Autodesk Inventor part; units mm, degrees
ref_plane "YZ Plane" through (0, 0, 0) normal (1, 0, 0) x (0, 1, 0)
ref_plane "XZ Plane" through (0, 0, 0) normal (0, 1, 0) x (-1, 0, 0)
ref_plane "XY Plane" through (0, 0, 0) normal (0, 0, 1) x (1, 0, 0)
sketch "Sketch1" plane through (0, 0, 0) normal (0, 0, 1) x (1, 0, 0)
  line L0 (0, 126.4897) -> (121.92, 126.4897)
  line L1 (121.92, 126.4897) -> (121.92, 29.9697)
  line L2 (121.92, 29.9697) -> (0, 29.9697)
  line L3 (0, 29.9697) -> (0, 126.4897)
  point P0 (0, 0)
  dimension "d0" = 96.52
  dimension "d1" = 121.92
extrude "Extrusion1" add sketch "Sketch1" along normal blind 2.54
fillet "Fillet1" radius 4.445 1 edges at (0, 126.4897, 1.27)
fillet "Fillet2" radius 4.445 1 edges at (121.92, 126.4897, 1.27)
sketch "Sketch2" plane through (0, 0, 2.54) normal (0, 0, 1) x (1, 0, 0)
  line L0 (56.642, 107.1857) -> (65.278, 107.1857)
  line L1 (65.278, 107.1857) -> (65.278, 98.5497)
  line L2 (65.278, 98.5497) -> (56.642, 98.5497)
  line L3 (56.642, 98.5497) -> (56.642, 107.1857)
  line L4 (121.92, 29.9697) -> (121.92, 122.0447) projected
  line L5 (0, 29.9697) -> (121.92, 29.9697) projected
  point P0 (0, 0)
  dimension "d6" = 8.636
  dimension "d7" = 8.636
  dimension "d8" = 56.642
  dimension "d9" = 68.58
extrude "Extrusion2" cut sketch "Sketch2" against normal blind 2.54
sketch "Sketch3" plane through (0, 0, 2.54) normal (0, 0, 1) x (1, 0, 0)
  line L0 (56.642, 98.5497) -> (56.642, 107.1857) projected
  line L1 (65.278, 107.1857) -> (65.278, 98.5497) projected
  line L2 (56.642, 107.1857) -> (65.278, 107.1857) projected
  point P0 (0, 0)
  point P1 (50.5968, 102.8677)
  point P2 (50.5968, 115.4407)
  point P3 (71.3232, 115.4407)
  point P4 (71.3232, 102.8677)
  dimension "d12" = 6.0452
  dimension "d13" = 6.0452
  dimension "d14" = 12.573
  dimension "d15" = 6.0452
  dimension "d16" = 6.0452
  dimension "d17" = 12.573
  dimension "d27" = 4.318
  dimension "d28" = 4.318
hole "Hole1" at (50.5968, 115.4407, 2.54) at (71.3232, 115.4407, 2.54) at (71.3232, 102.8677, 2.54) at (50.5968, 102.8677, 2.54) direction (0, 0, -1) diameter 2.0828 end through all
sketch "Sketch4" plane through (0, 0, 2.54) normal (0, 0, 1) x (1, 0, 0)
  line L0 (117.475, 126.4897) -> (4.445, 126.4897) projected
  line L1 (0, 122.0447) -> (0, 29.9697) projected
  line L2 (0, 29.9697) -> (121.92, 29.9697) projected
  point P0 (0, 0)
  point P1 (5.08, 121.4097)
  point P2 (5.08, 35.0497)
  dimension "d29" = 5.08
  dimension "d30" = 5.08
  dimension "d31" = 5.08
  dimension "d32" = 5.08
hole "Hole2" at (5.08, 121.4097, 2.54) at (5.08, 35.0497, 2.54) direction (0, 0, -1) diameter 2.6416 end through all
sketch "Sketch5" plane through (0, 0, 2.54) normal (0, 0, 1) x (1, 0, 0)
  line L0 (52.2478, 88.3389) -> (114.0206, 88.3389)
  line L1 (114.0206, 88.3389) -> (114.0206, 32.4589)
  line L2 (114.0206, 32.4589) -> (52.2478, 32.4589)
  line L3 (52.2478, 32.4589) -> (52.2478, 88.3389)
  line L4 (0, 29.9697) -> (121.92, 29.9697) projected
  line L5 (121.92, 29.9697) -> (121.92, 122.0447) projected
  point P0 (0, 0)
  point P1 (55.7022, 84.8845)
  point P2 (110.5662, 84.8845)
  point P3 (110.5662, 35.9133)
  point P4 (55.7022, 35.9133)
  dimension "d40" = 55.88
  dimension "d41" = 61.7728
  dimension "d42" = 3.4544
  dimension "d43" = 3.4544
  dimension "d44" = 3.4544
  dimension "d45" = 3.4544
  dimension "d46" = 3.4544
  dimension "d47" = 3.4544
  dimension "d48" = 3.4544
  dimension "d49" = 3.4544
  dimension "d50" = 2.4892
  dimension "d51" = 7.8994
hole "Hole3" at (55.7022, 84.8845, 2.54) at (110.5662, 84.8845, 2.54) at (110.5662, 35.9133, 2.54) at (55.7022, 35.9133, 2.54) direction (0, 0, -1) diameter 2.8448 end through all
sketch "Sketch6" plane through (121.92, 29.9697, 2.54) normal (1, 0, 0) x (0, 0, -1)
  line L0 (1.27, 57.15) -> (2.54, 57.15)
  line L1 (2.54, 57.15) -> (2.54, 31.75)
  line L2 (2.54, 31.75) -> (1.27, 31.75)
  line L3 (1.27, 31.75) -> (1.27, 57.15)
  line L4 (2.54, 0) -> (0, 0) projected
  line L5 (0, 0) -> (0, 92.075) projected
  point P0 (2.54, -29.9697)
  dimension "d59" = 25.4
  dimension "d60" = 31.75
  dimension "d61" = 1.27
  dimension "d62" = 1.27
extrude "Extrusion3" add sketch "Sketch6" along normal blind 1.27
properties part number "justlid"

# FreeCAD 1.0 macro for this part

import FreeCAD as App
import Part
import Sketcher
Q = App.Units.Quantity


def edges_at(feature, points):
    """Names of the edges that pass closest to the given points."""
    edges = feature.Shape.Edges
    near = lambda p: min(range(len(edges)), key=lambda i: edges[i].distToShape(Part.Vertex(*p))[0])
    return sorted({f"Edge{near(p) + 1}" for p in points})


def add_polygon(sketch, points):
    """Adds a closed chain of lines whose ends are joined by coincident constraints."""
    first, n = sketch.GeometryCount, len(points)
    for a, b in zip(points, points[1:] + points[:1]):
        sketch.addGeometry(Part.LineSegment(App.Vector(*a, 0), App.Vector(*b, 0)), False)
    for i in range(n):
        sketch.addConstraint(Sketcher.Constraint("Coincident", first + i, 2, first + (i + 1) % n, 1))

doc = App.newDocument("Part")
params = doc.addObject("Spreadsheet::Sheet", "Params")
for row, (alias, value) in enumerate([
    ("sketch1_width", "4.8 in"),
    ("sketch1_height", "3.8 in"),
    ("pad1_length", "0.1 in"),
    ("fillet_radius", "0.175 in"),
    ("fillet2_radius", "0.175 in"),
    ("sketch2_width", "0.34 in"),
    ("pocket1_length", "0.1 in"),
    ("sketch3_diameter", "0.082 in"),
    ("hole_diameter", "0.082 in"),
    ("sketch4_diameter", "0.104 in"),
    ("hole2_diameter", "0.104 in"),
    ("sketch5_diameter", "0.112 in"),
    ("hole3_diameter", "0.112 in"),
    ("sketch6_width", "1 in"),
    ("sketch6_height", "0.05 in"),
    ("pad2_length", "0.05 in"),
], start=1):
    params.set(f"A{row}", alias)
    params.set(f"B{row}", "=" + value)
    params.setAlias(f"B{row}", alias)

body = doc.addObject("PartDesign::Body", "Body")

sketch1 = body.newObject("Sketcher::SketchObject", "Sketch")
sketch1.AttachmentSupport = (doc.getObject("XY_Plane"), [""])
sketch1.MapMode = "FlatFace"
add_polygon(sketch1, [(122, 126), (0, 126), (0, 30), (122, 30)])
sketch1.addConstraint([
    Sketcher.Constraint("Horizontal", 0),
    Sketcher.Constraint("Vertical", 1),
    Sketcher.Constraint("Horizontal", 2),
    Sketcher.Constraint("Vertical", 3),
    Sketcher.Constraint("PointOnObject", 0, 2, -2),
    Sketcher.Constraint("DistanceX", 0, 2, 0, 1, Q("4.8 in")),
    Sketcher.Constraint("DistanceY", 1, 2, 1, 1, Q("3.8 in")),
    Sketcher.Constraint("DistanceY", -1, 1, 0, 2, Q("4.9799 in")),
])
sketch1.setExpression("Constraints[9]", "Params.sketch1_width")
sketch1.setExpression("Constraints[10]", "Params.sketch1_height")
pad1 = body.newObject("PartDesign::Pad", "Pad")
pad1.Profile = sketch1
pad1.setExpression("Length", "Params.pad1_length")
doc.recompute()

fillet = body.newObject("PartDesign::Fillet", "Fillet")
fillet.Base = (pad1, edges_at(pad1, [(0, 126.49, 1.27)]))
fillet.setExpression("Radius", "Params.fillet_radius")
doc.recompute()

fillet2 = body.newObject("PartDesign::Fillet", "Fillet001")
fillet2.Base = (fillet, edges_at(fillet, [(121.92, 126.49, 1.27)]))
fillet2.setExpression("Radius", "Params.fillet2_radius")

sketch2 = body.newObject("Sketcher::SketchObject", "Sketch001")
sketch2.AttachmentSupport = (doc.getObject("XY_Plane"), [""])
sketch2.MapMode = "FlatFace"
sketch2.AttachmentOffset = App.Placement(App.Vector(0, 0, 0.1 * 25.4), App.Rotation())
add_polygon(sketch2, [(65, 107), (57, 107), (57, 99), (65, 99)])
sketch2.addConstraint([
    Sketcher.Constraint("Horizontal", 0),
    Sketcher.Constraint("Vertical", 1),
    Sketcher.Constraint("Horizontal", 2),
    Sketcher.Constraint("Vertical", 3),
    Sketcher.Constraint("Equal", 2, 1),
    Sketcher.Constraint("DistanceX", 0, 2, 0, 1, Q("0.34 in")),
    Sketcher.Constraint("DistanceX", -1, 1, 0, 2, Q("2.23 in")),
    Sketcher.Constraint("DistanceY", -1, 1, 0, 2, Q("4.2199 in")),
])
sketch2.setExpression("Constraints[9]", "Params.sketch2_width")
pocket1 = body.newObject("PartDesign::Pocket", "Pocket")
pocket1.Profile = sketch2
pocket1.setExpression("Length", "Params.pocket1_length")

sketch3 = body.newObject("Sketcher::SketchObject", "Sketch002")
sketch3.AttachmentSupport = (doc.getObject("XY_Plane"), [""])
sketch3.MapMode = "FlatFace"
sketch3.AttachmentOffset = App.Placement(App.Vector(0, 0, 0.1 * 25.4), App.Rotation())
sketch3.addGeometry([
    Part.Circle(App.Vector(50.6, 115.4, 0), App.Vector(0, 0, 1), 1),
    Part.Circle(App.Vector(71.3, 115.4, 0), App.Vector(0, 0, 1), 1),
    Part.Circle(App.Vector(71.3, 102.9, 0), App.Vector(0, 0, 1), 1),
    Part.Circle(App.Vector(50.6, 102.9, 0), App.Vector(0, 0, 1), 1),
], False)
sketch3.addConstraint([
    Sketcher.Constraint("Equal", 0, 1),
    Sketcher.Constraint("Equal", 1, 2),
    Sketcher.Constraint("Equal", 2, 3),
    Sketcher.Constraint("Horizontal", 0, 3, 1, 3),
    Sketcher.Constraint("Horizontal", 2, 3, 3, 3),
    Sketcher.Constraint("Vertical", 1, 3, 2, 3),
    Sketcher.Constraint("Vertical", 0, 3, 3, 3),
    Sketcher.Constraint("Diameter", 0, Q("0.082 in")),
    Sketcher.Constraint("DistanceX", -1, 1, 0, 3, Q("1.992 in")),
    Sketcher.Constraint("DistanceX", -1, 1, 1, 3, Q("2.808 in")),
    Sketcher.Constraint("DistanceY", 2, 3, 1, 3, Q("0.495 in")),
    Sketcher.Constraint("DistanceY", -1, 1, 0, 3, Q("4.5449 in")),
])
sketch3.setExpression("Constraints[7]", "Params.sketch3_diameter")
doc.recompute()
hole = body.newObject("PartDesign::Hole", "Hole")
hole.Profile = sketch3
hole.ThreadType = "None"
hole.setExpression("Diameter", "Params.hole_diameter")
hole.DepthType = "ThroughAll"

sketch4 = body.newObject("Sketcher::SketchObject", "Sketch003")
sketch4.AttachmentSupport = (doc.getObject("XY_Plane"), [""])
sketch4.MapMode = "FlatFace"
sketch4.AttachmentOffset = App.Placement(App.Vector(0, 0, 0.1 * 25.4), App.Rotation())
sketch4.addGeometry([
    Part.Circle(App.Vector(5.1, 121.4, 0), App.Vector(0, 0, 1), 1.3),
    Part.Circle(App.Vector(5.1, 35, 0), App.Vector(0, 0, 1), 1.3),
], False)
sketch4.addConstraint([
    Sketcher.Constraint("Equal", 0, 1),
    Sketcher.Constraint("Vertical", 0, 3, 1, 3),
    Sketcher.Constraint("Diameter", 0, Q("0.104 in")),
    Sketcher.Constraint("DistanceX", -1, 1, 0, 3, Q("0.2 in")),
    Sketcher.Constraint("DistanceY", 1, 3, 0, 3, Q("3.4 in")),
    Sketcher.Constraint("DistanceY", -1, 1, 0, 3, Q("4.7799 in")),
])
sketch4.setExpression("Constraints[2]", "Params.sketch4_diameter")
doc.recompute()
hole2 = body.newObject("PartDesign::Hole", "Hole001")
hole2.Profile = sketch4
hole2.ThreadType = "None"
hole2.setExpression("Diameter", "Params.hole2_diameter")
hole2.DepthType = "ThroughAll"

sketch5 = body.newObject("Sketcher::SketchObject", "Sketch004")
sketch5.AttachmentSupport = (doc.getObject("XY_Plane"), [""])
sketch5.MapMode = "FlatFace"
sketch5.AttachmentOffset = App.Placement(App.Vector(0, 0, 0.1 * 25.4), App.Rotation())
sketch5.addGeometry([
    Part.Circle(App.Vector(55.7, 84.9, 0), App.Vector(0, 0, 1), 1.4),
    Part.Circle(App.Vector(110.6, 84.9, 0), App.Vector(0, 0, 1), 1.4),
    Part.Circle(App.Vector(110.6, 35.9, 0), App.Vector(0, 0, 1), 1.4),
    Part.Circle(App.Vector(55.7, 35.9, 0), App.Vector(0, 0, 1), 1.4),
], False)
sketch5.addConstraint([
    Sketcher.Constraint("Equal", 0, 1),
    Sketcher.Constraint("Equal", 1, 2),
    Sketcher.Constraint("Equal", 2, 3),
    Sketcher.Constraint("Horizontal", 0, 3, 1, 3),
    Sketcher.Constraint("Horizontal", 2, 3, 3, 3),
    Sketcher.Constraint("Vertical", 1, 3, 2, 3),
    Sketcher.Constraint("Vertical", 0, 3, 3, 3),
    Sketcher.Constraint("Diameter", 0, Q("0.112 in")),
    Sketcher.Constraint("DistanceX", 0, 3, 1, 3, Q("2.16 in")),
    Sketcher.Constraint("DistanceX", -1, 1, 0, 3, Q("2.193 in")),
    Sketcher.Constraint("DistanceY", 2, 3, 1, 3, Q("1.928 in")),
    Sketcher.Constraint("DistanceY", -1, 1, 0, 3, Q("3.3419 in")),
])
sketch5.setExpression("Constraints[7]", "Params.sketch5_diameter")
doc.recompute()
hole3 = body.newObject("PartDesign::Hole", "Hole002")
hole3.Profile = sketch5
hole3.ThreadType = "None"
hole3.setExpression("Diameter", "Params.hole3_diameter")
hole3.DepthType = "ThroughAll"

sketch6 = body.newObject("Sketcher::SketchObject", "Sketch005")
sketch6.AttachmentSupport = (doc.getObject("YZ_Plane"), [""])
sketch6.MapMode = "FlatFace"
sketch6.AttachmentOffset = App.Placement(App.Vector(0, 0, 4.8 * 25.4), App.Rotation())
add_polygon(sketch6, [(87.1, 0), (87.1, 1.3), (61.7, 1.3), (61.7, 0)])
sketch6.addConstraint([
    Sketcher.Constraint("Vertical", 0),
    Sketcher.Constraint("Horizontal", 1),
    Sketcher.Constraint("Vertical", 2),
    Sketcher.Constraint("Horizontal", 3),
    Sketcher.Constraint("PointOnObject", 2, 2, -1),
    Sketcher.Constraint("DistanceX", 1, 2, 1, 1, Q("1 in")),
    Sketcher.Constraint("DistanceY", 0, 1, 0, 2, Q("0.05 in")),
    Sketcher.Constraint("DistanceX", -1, 1, 0, 2, Q("3.4299 in")),
])
sketch6.setExpression("Constraints[9]", "Params.sketch6_width")
sketch6.setExpression("Constraints[10]", "Params.sketch6_height")
pad2 = body.newObject("PartDesign::Pad", "Pad001")
pad2.Profile = sketch6
pad2.setExpression("Length", "Params.pad2_length")

doc.recompute()
